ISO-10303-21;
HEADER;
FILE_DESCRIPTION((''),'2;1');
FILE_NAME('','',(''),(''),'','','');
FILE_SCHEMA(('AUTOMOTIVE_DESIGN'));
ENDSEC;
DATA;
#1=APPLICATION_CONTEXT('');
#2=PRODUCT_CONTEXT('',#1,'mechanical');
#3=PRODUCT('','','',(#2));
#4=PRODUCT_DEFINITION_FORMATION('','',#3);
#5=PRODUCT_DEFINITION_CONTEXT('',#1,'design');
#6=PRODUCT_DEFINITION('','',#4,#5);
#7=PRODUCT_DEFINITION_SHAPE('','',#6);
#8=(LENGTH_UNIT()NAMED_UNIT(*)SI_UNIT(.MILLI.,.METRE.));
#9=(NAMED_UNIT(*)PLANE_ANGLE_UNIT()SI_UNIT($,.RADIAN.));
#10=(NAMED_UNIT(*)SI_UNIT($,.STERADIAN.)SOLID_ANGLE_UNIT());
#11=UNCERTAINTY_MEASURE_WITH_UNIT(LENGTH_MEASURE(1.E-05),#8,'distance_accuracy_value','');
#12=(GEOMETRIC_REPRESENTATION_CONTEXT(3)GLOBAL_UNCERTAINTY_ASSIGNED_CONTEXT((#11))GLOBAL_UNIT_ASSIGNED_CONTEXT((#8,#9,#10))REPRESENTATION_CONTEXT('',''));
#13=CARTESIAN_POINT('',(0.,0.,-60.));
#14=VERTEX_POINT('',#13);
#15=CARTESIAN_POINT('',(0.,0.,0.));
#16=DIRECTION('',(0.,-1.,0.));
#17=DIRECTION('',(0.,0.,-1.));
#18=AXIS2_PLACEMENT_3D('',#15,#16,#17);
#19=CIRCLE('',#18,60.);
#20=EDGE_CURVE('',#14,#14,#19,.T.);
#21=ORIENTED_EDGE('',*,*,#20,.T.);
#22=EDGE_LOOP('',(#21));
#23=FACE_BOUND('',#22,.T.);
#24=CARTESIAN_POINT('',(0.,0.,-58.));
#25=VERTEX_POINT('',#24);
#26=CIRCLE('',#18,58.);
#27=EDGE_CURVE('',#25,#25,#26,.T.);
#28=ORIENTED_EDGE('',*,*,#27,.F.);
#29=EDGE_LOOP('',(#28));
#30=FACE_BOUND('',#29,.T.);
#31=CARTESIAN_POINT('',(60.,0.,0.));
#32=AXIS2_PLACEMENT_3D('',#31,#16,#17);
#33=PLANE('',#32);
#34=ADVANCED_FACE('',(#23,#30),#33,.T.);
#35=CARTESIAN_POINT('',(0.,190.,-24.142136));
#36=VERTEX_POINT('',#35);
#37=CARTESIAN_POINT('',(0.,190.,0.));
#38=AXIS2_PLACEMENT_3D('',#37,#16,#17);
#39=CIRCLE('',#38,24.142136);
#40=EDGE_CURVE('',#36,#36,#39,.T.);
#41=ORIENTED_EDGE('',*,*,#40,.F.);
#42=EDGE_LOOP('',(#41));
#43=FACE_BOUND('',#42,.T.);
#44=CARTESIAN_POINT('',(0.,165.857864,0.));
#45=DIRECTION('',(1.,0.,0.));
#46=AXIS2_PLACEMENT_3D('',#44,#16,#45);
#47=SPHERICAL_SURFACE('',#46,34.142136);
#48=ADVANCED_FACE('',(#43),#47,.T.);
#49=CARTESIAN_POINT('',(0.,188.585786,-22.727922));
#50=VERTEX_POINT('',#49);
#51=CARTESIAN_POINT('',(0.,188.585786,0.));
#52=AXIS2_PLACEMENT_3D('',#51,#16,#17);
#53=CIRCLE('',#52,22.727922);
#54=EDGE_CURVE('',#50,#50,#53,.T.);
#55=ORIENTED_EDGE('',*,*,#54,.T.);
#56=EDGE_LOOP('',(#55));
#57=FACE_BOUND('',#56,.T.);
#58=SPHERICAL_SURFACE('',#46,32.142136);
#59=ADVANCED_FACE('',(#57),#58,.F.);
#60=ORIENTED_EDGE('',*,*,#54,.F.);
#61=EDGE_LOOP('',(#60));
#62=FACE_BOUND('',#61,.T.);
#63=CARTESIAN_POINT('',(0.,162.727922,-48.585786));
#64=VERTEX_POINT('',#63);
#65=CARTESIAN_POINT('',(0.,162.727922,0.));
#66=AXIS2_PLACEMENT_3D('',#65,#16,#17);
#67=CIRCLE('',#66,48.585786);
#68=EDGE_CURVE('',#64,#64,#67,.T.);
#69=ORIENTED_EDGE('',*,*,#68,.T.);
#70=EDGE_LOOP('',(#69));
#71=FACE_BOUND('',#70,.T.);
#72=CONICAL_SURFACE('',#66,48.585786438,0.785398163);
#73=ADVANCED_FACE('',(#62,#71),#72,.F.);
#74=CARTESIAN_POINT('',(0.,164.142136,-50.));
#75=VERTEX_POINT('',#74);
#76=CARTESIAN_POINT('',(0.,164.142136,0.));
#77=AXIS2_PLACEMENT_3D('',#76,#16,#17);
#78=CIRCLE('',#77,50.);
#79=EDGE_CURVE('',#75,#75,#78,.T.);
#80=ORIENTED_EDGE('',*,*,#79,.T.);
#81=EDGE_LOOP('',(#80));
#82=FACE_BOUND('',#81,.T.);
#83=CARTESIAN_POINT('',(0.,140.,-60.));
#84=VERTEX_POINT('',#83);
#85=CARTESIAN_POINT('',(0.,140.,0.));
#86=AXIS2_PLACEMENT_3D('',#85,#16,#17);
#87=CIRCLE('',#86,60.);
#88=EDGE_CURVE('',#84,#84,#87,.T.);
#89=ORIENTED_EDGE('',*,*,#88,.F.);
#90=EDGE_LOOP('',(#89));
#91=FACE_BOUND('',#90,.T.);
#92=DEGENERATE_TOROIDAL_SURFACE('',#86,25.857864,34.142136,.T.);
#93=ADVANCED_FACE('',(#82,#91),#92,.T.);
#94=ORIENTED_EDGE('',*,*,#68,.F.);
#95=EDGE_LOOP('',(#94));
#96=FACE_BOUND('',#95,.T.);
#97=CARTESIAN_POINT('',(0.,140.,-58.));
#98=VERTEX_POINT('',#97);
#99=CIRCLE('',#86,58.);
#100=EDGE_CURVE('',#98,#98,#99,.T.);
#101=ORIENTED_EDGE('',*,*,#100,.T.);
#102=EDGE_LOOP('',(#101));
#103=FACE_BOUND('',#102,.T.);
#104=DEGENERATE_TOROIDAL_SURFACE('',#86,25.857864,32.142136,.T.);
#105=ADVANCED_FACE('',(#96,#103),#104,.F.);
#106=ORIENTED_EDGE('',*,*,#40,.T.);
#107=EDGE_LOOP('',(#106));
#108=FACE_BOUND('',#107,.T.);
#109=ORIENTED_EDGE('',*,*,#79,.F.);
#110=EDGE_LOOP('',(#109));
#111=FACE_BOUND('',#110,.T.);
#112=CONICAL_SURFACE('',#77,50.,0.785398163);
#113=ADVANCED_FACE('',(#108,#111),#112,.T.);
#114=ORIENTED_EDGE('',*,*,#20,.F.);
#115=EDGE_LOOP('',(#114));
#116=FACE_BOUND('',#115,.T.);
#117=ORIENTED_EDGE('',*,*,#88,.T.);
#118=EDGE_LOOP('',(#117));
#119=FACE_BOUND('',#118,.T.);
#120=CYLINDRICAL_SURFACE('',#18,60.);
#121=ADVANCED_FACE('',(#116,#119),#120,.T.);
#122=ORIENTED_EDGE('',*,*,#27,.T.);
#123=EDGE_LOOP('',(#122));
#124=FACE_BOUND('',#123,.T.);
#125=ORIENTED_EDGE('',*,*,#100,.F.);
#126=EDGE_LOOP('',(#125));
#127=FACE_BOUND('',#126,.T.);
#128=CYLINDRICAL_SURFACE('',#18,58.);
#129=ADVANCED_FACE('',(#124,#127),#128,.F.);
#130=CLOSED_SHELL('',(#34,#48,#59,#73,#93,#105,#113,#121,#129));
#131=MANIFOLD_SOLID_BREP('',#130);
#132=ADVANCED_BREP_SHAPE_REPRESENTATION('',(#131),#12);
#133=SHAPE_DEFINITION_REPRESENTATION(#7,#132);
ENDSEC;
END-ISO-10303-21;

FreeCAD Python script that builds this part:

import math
import FreeCAD as App
import Part
import Sketcher

V = App.Vector
Q = App.Units.Quantity


def faces_at(feature, points):
    """Names of the faces that lie closest to the given points."""
    faces = feature.Shape.Faces
    near = lambda p: min(range(len(faces)), key=lambda i: faces[i].distToShape(Part.Vertex(*p))[0])
    return sorted({f"Face{near(p) + 1}" for p in points})

doc = App.newDocument("Part")
body = doc.addObject("PartDesign::Body", "Body")

# Sketch on XY plane
sketch1 = doc.addObject("Sketcher::SketchObject", "Sketch")
body.addObject(sketch1)
sketch1.AttachmentSupport = (doc.XY_Plane, [""])
sketch1.MapMode = "FlatFace"
sketch1.addGeometry(Part.LineSegment(V(50, 164.142136, 0), V(24.142136, 190, 0)), False)
sketch1.addGeometry(Part.ArcOfCircle(Part.Circle(V(0, 165.857864, 0), V(0, 0, 1), 34.142136), math.radians(45), math.radians(90)), False)
sketch1.addGeometry(Part.LineSegment(V(0, 200, 0), V(0, 0, 0)), False)
sketch1.addGeometry(Part.LineSegment(V(0, 0, 0), V(60, 0, 0)), False)
sketch1.addGeometry(Part.LineSegment(V(60, 0, 0), V(60, 140, 0)), False)
sketch1.addGeometry(Part.ArcOfCircle(Part.Circle(V(25.857864, 140, 0), V(0, 0, 1), 34.142136), math.radians(0), math.radians(45)), False)
sketch1.addConstraint(Sketcher.Constraint("Tangent", 0, 2, 1, 1))
sketch1.addConstraint(Sketcher.Constraint("Coincident", 1, 2, 2, 1))
sketch1.addConstraint(Sketcher.Constraint("Coincident", 2, 2, 3, 1))
sketch1.addConstraint(Sketcher.Constraint("Coincident", 3, 2, 4, 1))
sketch1.addConstraint(Sketcher.Constraint("Tangent", 4, 2, 5, 1))
sketch1.addConstraint(Sketcher.Constraint("Tangent", 5, 2, 0, 1))
sketch1.addConstraint(Sketcher.Constraint("Vertical", 2))
sketch1.addConstraint(Sketcher.Constraint("Horizontal", 3))
sketch1.addConstraint(Sketcher.Constraint("Vertical", 4))
sketch1.addConstraint(Sketcher.Constraint("Coincident", 2, 2, -1, 1))
sketch1.addConstraint(Sketcher.Constraint("Equal", 1, 5))
sketch1.addConstraint(Sketcher.Constraint("PointOnObject", 1, 3, -2))
sketch1.addConstraint(Sketcher.Constraint("DistanceX", 3, 1, 3, 2, Q("60 mm")))
sketch1.addConstraint(Sketcher.Constraint("DistanceY", 2, 2, 2, 1, Q("200 mm")))
sketch1.addConstraint(Sketcher.Constraint("DistanceY", 4, 1, 4, 2, Q("140 mm")))
sketch1.addConstraint(Sketcher.Constraint("DistanceY", -1, 1, 0, 2, Q("190 mm")))
revolution = doc.addObject("PartDesign::Revolution", "Revolution")
body.addObject(revolution)
revolution.Profile = sketch1
revolution.ReferenceAxis = (sketch1, ["V_Axis"])
revolution.Angle = 360
doc.recompute()

thickness = doc.addObject("PartDesign::Thickness", "Thickness")
body.addObject(thickness)
thickness.Base = (revolution, faces_at(revolution, [(0, 0, 0)]))
thickness.Value = 2
thickness.Reversed = True
thickness.Join = "Intersection"

doc.recompute()
